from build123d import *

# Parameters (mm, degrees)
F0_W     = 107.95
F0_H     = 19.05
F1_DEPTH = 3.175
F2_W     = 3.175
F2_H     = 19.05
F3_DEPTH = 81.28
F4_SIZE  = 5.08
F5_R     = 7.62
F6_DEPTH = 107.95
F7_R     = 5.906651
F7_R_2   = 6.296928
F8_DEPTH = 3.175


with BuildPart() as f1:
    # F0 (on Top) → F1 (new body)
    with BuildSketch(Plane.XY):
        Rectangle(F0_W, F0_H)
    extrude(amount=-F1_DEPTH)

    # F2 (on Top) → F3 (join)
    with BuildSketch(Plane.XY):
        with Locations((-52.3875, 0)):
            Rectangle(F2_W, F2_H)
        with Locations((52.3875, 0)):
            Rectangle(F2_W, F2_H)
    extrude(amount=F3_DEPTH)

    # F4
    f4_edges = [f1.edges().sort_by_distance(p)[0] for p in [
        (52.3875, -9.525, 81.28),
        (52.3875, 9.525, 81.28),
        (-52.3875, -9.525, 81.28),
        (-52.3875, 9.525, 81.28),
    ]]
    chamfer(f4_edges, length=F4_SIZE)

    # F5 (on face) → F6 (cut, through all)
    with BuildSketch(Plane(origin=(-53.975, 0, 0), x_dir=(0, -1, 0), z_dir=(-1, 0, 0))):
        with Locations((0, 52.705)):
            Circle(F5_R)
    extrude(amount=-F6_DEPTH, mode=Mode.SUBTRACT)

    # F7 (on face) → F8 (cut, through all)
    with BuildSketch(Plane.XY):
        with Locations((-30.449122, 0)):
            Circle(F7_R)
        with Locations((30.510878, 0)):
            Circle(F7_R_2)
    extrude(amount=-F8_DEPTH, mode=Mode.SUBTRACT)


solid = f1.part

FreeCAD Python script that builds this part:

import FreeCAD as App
import Part
import Sketcher
from FreeCAD import Vector
Q = App.Units.Quantity


def edges_at(feature, points):
    """Names of the edges that pass closest to the given points."""
    edges = feature.Shape.Edges
    near = lambda p: min(range(len(edges)), key=lambda i: edges[i].distToShape(Part.Vertex(*p))[0])
    return sorted({f"Edge{near(p) + 1}" for p in points})


def add_polygon(sketch, points):
    """Adds a closed chain of lines whose ends are joined by coincident constraints."""
    first, n = sketch.GeometryCount, len(points)
    for a, b in zip(points, points[1:] + points[:1]):
        sketch.addGeometry(Part.LineSegment(App.Vector(*a, 0), App.Vector(*b, 0)), False)
    for i in range(n):
        sketch.addConstraint(Sketcher.Constraint("Coincident", first + i, 2, first + (i + 1) % n, 1))

doc = App.newDocument("Part")
body = doc.addObject("PartDesign::Body", "Body")

# Sketch on XY plane
sketch1 = body.newObject("Sketcher::SketchObject", "Sketch")
sketch1.AttachmentSupport = (doc.getObject("XY_Plane"), [""])
sketch1.MapMode = "FlatFace"
add_polygon(sketch1, [(-53.975, 9.525), (-53.975, -9.525), (53.975, -9.525), (53.975, 9.525)])  # lines 0-3
sketch1.addConstraint(Sketcher.Constraint("Vertical", 0))
sketch1.addConstraint(Sketcher.Constraint("Horizontal", 1))
sketch1.addConstraint(Sketcher.Constraint("Vertical", 2))
sketch1.addConstraint(Sketcher.Constraint("Horizontal", 3))
sketch1.addConstraint(Sketcher.Constraint("Symmetric", 0, 2, 2, 2, -1, 1))
sketch1.addConstraint(Sketcher.Constraint("DistanceX", 1, 1, 1, 2, Q("4.25 in")))
sketch1.addConstraint(Sketcher.Constraint("DistanceY", 0, 2, 0, 1, Q("0.75 in")))
pad1 = body.newObject("PartDesign::Pad", "Pad")
pad1.Profile = sketch1
pad1.Length = Q("0.125 in")
pad1.Reversed = True

# Sketch on XY plane
sketch2 = body.newObject("Sketcher::SketchObject", "Sketch001")
sketch2.AttachmentSupport = (doc.getObject("XY_Plane"), [""])
sketch2.MapMode = "FlatFace"
add_polygon(sketch2, [(-53.975, 9.525), (-53.975, -9.525), (-50.8, -9.525), (-50.8, 9.525)])  # lines 0-3
add_polygon(sketch2, [(50.8, 9.525), (50.8, -9.525), (53.975, -9.525), (53.975, 9.525)])  # lines 4-7
sketch2.addConstraint(Sketcher.Constraint("Vertical", 0))
sketch2.addConstraint(Sketcher.Constraint("Horizontal", 1))
sketch2.addConstraint(Sketcher.Constraint("Vertical", 2))
sketch2.addConstraint(Sketcher.Constraint("Horizontal", 3))
sketch2.addConstraint(Sketcher.Constraint("Vertical", 4))
sketch2.addConstraint(Sketcher.Constraint("Horizontal", 5))
sketch2.addConstraint(Sketcher.Constraint("Vertical", 6))
sketch2.addConstraint(Sketcher.Constraint("Horizontal", 7))
sketch2.addConstraint(Sketcher.Constraint("Symmetric", 2, 2, 4, 2, -1, 1))
sketch2.addConstraint(Sketcher.Constraint("Symmetric", 0, 2, 6, 2, -1, 1))
sketch2.addConstraint(Sketcher.Constraint("Horizontal", 1, 2, 4, 2))
sketch2.addConstraint(Sketcher.Constraint("DistanceX", 1, 2, -1, 1, Q("2 in")))
sketch2.addConstraint(Sketcher.Constraint("DistanceY", 0, 2, 0, 1, Q("0.75 in")))
sketch2.addConstraint(Sketcher.Constraint("DistanceX", 1, 1, 1, 2, Q("0.125 in")))
pad2 = body.newObject("PartDesign::Pad", "Pad001")
pad2.Profile = sketch2
pad2.Length = Q("3.2 in")
doc.recompute()

chamfer = body.newObject("PartDesign::Chamfer", "Chamfer")
chamfer.Base = (pad2, edges_at(pad2, [
    (52.388, -9.525, 81.28),
    (52.388, 9.525, 81.28),
    (-52.388, -9.525, 81.28),
    (-52.388, 9.525, 81.28),
]))
chamfer.Size = Q("0.2 in")

# Sketch on YZ plane
sketch3 = body.newObject("Sketcher::SketchObject", "Sketch002")
sketch3.AttachmentSupport = (doc.getObject("YZ_Plane"), [""])
sketch3.MapMode = "FlatFace"
sketch3.AttachmentOffset = App.Placement(Vector(0, 0, -2.125 * 25.4), App.Rotation())
sketch3.addGeometry(Part.Circle(Vector(0, 52.705, 0), Vector(0, 0, 1), 7.62), False)
sketch3.addConstraint(Sketcher.Constraint("PointOnObject", 0, 3, -2))
sketch3.addConstraint(Sketcher.Constraint("Diameter", 0, Q("0.6 in")))
sketch3.addConstraint(Sketcher.Constraint("DistanceY", -1, 1, 0, 3, Q("2.075 in")))
pocket1 = body.newObject("PartDesign::Pocket", "Pocket")
pocket1.Profile = sketch3
pocket1.Type = "ThroughAll"
pocket1.Reversed = True

# Sketch on XY plane
sketch4 = body.newObject("Sketcher::SketchObject", "Sketch003")
sketch4.AttachmentSupport = (doc.getObject("XY_Plane"), [""])
sketch4.MapMode = "FlatFace"
sketch4.addGeometry(Part.Circle(Vector(-30.449122, 0, 0), Vector(0, 0, 1), 5.906651), False)
sketch4.addGeometry(Part.Circle(Vector(30.510878, 0, 0), Vector(0, 0, 1), 6.296928), False)
sketch4.addConstraint(Sketcher.Constraint("PointOnObject", 0, 3, -1))
sketch4.addConstraint(Sketcher.Constraint("PointOnObject", 1, 3, -1))
sketch4.addConstraint(Sketcher.Constraint("DistanceX", 0, 3, 1, 3, Q("2.4 in")))
sketch4.addConstraint(Sketcher.Constraint("Diameter", 0, 11.813302))
sketch4.addConstraint(Sketcher.Constraint("Diameter", 1, 12.593856))
sketch4.addConstraint(Sketcher.Constraint("DistanceX", 0, 3, -1, 1, 30.449122))
pocket2 = body.newObject("PartDesign::Pocket", "Pocket001")
pocket2.Profile = sketch4
pocket2.Type = "ThroughAll"

doc.recompute()
